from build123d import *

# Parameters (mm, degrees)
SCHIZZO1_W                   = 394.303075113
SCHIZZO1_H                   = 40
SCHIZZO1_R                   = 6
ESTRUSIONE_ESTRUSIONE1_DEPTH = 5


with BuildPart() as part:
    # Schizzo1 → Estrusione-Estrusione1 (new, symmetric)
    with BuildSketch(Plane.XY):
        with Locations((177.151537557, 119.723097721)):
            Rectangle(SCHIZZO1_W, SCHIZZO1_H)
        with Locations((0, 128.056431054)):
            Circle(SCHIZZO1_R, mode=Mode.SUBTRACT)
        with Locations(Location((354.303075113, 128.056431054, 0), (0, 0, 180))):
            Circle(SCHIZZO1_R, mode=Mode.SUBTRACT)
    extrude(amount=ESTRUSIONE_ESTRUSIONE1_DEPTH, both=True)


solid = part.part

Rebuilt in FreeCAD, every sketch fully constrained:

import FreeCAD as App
import Part
import Sketcher


def add_polygon(sketch, points):
    """Adds a closed chain of lines whose ends are joined by coincident constraints."""
    first, n = sketch.GeometryCount, len(points)
    for a, b in zip(points, points[1:] + points[:1]):
        sketch.addGeometry(Part.LineSegment(App.Vector(*a, 0), App.Vector(*b, 0)), False)
    for i in range(n):
        sketch.addConstraint(Sketcher.Constraint("Coincident", first + i, 2, first + (i + 1) % n, 1))

doc = App.newDocument("Part")
params = doc.addObject("Spreadsheet::Sheet", "Params")
for row, (alias, value) in enumerate([
    ("sketch1_diameter", "12 mm"),
    ("sketch1_height", "40 mm"),
    ("pad1_length", "10 mm"),
], start=1):
    params.set(f"A{row}", alias)
    params.set(f"B{row}", "=" + value)
    params.setAlias(f"B{row}", alias)

body = doc.addObject("PartDesign::Body", "Body")

# Sketch on XY plane
sketch1 = body.newObject("Sketcher::SketchObject", "Sketch")
sketch1.AttachmentSupport = (doc.getObject("XY_Plane"), [""])
sketch1.MapMode = "FlatFace"
add_polygon(sketch1, [(-20, 140), (-20, 100), (374, 100), (374, 140)])  # lines 0-3
sketch1.addGeometry(Part.Circle(App.Vector(0, 128, 0), App.Vector(0, 0, 1), 6), False)  # 4
sketch1.addGeometry(Part.Circle(App.Vector(354, 128, 0), App.Vector(0, 0, 1), 6), False)  # 5
sketch1.addConstraint([
    Sketcher.Constraint("Vertical", 0),
    Sketcher.Constraint("Horizontal", 1),
    Sketcher.Constraint("Vertical", 2),
    Sketcher.Constraint("Horizontal", 3),
    Sketcher.Constraint("Equal", 4, 5),
    Sketcher.Constraint("PointOnObject", 4, 3, -2),
    Sketcher.Constraint("Horizontal", 4, 3, 5, 3),
    Sketcher.Constraint("Diameter", 4, 12.0),
    Sketcher.Constraint("DistanceY", 0, 2, 0, 1, 40.0),
    Sketcher.Constraint("DistanceX", 0, 2, -1, 1, 20.0),
    Sketcher.Constraint("DistanceX", 5, 3, 1, 2, 20.0),
    Sketcher.Constraint("DistanceX", 1, 1, 1, 2, 394.303075),
    Sketcher.Constraint("DistanceY", -1, 1, 4, 3, 128.056431),
    Sketcher.Constraint("DistanceY", -1, 1, 0, 2, 99.723098),
])
sketch1.setExpression("Constraints[11]", "Params.sketch1_diameter")
sketch1.setExpression("Constraints[12]", "Params.sketch1_height")
pad1 = body.newObject("PartDesign::Pad", "Pad")
pad1.Profile = sketch1
pad1.setExpression("Length", "Params.pad1_length")
pad1.Midplane = True

doc.recompute()
